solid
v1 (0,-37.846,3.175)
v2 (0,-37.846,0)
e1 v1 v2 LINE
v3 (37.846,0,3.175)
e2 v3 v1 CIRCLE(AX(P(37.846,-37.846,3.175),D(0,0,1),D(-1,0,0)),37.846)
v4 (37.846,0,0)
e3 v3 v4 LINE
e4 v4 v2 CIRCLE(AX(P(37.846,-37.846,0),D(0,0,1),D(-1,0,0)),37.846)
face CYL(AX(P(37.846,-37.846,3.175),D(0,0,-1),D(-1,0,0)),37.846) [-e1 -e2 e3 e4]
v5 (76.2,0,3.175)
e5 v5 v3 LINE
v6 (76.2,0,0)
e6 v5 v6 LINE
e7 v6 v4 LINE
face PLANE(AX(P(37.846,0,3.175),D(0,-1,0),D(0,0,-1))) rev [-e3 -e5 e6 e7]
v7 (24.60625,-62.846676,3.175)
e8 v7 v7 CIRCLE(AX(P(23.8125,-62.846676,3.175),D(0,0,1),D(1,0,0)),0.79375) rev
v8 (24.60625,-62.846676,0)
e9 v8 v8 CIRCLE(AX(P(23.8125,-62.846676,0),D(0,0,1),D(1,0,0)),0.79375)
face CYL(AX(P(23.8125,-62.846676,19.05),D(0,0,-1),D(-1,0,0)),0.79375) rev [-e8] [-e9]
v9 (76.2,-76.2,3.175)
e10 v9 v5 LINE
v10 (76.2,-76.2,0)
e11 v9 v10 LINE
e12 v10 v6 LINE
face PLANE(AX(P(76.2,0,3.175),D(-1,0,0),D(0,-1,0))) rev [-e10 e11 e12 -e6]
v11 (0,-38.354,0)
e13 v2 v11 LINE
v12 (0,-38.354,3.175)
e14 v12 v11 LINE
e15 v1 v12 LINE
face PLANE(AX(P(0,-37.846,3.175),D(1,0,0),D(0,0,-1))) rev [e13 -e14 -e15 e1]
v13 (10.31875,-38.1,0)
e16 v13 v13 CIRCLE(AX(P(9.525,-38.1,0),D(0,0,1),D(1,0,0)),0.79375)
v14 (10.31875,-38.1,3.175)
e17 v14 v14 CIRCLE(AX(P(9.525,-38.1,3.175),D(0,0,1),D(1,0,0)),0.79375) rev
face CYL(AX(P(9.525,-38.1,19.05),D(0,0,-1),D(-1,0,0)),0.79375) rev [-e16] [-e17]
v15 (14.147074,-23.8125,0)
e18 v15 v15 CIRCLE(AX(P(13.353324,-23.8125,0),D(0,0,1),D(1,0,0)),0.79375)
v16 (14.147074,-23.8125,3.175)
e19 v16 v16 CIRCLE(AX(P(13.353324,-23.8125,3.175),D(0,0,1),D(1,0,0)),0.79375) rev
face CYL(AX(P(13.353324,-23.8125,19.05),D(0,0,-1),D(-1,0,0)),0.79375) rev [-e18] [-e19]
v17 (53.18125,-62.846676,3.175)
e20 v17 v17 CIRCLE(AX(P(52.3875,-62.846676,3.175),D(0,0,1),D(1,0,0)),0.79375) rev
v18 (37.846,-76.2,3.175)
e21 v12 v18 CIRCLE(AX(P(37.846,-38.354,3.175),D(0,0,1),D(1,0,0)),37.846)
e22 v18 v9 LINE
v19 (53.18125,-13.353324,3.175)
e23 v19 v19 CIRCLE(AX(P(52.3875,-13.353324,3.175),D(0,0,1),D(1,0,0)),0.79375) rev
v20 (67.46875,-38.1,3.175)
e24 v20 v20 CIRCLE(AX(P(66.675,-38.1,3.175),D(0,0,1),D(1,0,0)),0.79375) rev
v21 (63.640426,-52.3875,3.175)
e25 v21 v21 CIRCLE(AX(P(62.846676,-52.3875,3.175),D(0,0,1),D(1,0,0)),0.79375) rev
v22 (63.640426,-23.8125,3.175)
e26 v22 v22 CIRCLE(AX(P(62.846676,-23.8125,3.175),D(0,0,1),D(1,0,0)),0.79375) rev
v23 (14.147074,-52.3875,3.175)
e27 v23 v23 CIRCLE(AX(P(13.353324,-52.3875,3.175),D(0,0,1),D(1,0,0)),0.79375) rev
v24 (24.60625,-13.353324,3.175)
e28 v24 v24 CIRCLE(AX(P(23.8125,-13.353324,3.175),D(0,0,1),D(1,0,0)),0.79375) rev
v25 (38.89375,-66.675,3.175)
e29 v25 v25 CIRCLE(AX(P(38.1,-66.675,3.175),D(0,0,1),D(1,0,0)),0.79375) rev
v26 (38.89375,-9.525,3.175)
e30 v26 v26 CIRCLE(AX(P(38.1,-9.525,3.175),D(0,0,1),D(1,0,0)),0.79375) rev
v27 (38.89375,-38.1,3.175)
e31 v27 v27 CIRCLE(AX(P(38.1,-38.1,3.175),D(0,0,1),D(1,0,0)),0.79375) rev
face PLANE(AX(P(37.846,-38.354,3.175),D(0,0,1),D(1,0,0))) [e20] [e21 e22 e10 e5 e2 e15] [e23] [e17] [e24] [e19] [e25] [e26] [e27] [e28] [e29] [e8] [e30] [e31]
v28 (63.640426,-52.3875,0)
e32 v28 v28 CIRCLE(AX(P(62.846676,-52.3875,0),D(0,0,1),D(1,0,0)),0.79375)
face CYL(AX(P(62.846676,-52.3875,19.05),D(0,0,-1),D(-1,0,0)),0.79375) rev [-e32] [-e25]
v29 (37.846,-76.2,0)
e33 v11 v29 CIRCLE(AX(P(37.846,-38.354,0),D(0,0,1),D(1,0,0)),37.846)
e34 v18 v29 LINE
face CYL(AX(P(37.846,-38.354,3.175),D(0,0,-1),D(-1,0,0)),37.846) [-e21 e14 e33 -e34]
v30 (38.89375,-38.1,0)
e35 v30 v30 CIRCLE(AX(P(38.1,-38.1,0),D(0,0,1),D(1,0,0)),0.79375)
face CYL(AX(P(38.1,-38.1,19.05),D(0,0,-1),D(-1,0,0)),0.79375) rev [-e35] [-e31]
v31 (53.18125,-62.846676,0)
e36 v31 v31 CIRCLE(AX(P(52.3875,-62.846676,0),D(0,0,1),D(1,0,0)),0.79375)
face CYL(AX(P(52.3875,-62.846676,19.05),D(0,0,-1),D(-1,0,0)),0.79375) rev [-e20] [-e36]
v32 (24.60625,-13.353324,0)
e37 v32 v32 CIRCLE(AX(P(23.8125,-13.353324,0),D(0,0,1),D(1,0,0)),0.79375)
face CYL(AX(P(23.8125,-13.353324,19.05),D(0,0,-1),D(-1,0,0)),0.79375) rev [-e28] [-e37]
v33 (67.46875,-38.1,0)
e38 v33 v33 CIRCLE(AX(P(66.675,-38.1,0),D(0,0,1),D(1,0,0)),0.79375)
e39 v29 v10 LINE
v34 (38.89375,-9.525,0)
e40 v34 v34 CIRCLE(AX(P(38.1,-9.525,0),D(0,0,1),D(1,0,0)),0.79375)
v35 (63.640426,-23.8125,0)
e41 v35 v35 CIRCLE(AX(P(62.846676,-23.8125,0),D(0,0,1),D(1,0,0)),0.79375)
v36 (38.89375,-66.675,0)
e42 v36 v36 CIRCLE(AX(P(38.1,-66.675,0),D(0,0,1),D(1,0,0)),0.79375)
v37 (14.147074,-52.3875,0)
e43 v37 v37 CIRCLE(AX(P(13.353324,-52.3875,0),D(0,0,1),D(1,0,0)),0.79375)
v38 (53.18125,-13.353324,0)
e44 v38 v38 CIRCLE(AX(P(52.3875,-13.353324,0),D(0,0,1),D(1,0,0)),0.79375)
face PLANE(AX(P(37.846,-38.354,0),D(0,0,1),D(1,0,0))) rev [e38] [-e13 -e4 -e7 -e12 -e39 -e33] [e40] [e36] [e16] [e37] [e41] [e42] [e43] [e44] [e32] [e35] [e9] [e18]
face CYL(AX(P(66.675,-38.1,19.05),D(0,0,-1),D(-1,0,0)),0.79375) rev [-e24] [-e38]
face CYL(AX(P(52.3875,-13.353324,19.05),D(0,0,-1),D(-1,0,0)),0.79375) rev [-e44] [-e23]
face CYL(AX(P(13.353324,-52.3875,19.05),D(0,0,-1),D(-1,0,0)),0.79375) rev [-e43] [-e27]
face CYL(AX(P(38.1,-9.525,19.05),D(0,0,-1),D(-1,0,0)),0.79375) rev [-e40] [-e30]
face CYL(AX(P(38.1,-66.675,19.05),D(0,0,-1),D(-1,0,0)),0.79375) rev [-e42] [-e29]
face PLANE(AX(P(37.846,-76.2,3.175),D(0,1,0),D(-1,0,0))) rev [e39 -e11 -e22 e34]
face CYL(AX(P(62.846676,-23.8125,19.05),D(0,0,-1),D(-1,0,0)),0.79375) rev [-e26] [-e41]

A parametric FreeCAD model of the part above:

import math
import FreeCAD as App
import Part
import Sketcher
Q = App.Units.Quantity

doc = App.newDocument("Part")
params = doc.addObject("Spreadsheet::Sheet", "Params")
for row, (alias, value) in enumerate([
    ("sketch1_height", "3 in"),
    ("sketch1_radius", "1.49 in"),
    ("pad1_length", "0.125 in"),
    ("sketch2_diameter", "0.0625 in"),
    ("pocket1_length", "0.75 in"),
], start=1):
    params.set(f"A{row}", alias)
    params.set(f"B{row}", "=" + value)
    params.setAlias(f"B{row}", alias)

body = doc.addObject("PartDesign::Body", "Body")

# Sketch on XY plane
sketch1 = body.newObject("Sketcher::SketchObject", "Sketch")
sketch1.AttachmentSupport = (doc.getObject("XY_Plane"), [""])
sketch1.MapMode = "FlatFace"
sketch1.addGeometry([
    Part.LineSegment(App.Vector(76.2, -76.2, 0), App.Vector(76.2, 0, 0)),  # 0
    Part.LineSegment(App.Vector(76.2, 0, 0), App.Vector(37.846, 0, 0)),  # 1
    Part.ArcOfCircle(Part.Circle(App.Vector(37.846, -37.846, 0), App.Vector(0, 0, 1), 37.846), math.radians(90), math.radians(180)),  # 2
    Part.LineSegment(App.Vector(0, -37.846, 0), App.Vector(0, -38.354, 0)),  # 3
    Part.ArcOfCircle(Part.Circle(App.Vector(37.846, -38.354, 0), App.Vector(0, 0, 1), 37.846), math.radians(180), math.radians(270)),  # 4
    Part.LineSegment(App.Vector(37.846, -76.2, 0), App.Vector(76.2, -76.2, 0)),  # 5
], False)
sketch1.addConstraint([
    Sketcher.Constraint("Coincident", 0, 2, 1, 1),
    Sketcher.Constraint("Tangent", 1, 2, 2, 1),
    Sketcher.Constraint("Tangent", 2, 2, 3, 1),
    Sketcher.Constraint("Tangent", 3, 2, 4, 1),
    Sketcher.Constraint("Tangent", 4, 2, 5, 1),
    Sketcher.Constraint("Coincident", 5, 2, 0, 1),
    Sketcher.Constraint("Vertical", 0),
    Sketcher.Constraint("Horizontal", 1),
    Sketcher.Constraint("Vertical", 3),
    Sketcher.Constraint("Horizontal", 5),
    Sketcher.Constraint("Equal", 2, 4),
    Sketcher.Constraint("PointOnObject", 0, 2, -1),
    Sketcher.Constraint("PointOnObject", 2, 2, -2),
    Sketcher.Constraint("DistanceY", 0, 1, 0, 2, Q("3 in")),
    Sketcher.Constraint("Radius", 2, Q("1.49 in")),
    Sketcher.Constraint("DistanceX", -1, 1, 0, 2, Q("3 in")),
])
sketch1.setExpression("Constraints[13]", "Params.sketch1_height")
sketch1.setExpression("Constraints[14]", "Params.sketch1_radius")
pad1 = body.newObject("PartDesign::Pad", "Pad")
pad1.Profile = sketch1
pad1.setExpression("Length", "Params.pad1_length")

# Sketch on XY plane
sketch2 = body.newObject("Sketcher::SketchObject", "Sketch001")
sketch2.AttachmentSupport = (doc.getObject("XY_Plane"), [""])
sketch2.MapMode = "FlatFace"
sketch2.addGeometry([
    Part.Circle(App.Vector(38.1, -38.1, 0), App.Vector(0, 0, 1), 0.79375),  # 0
    Part.Circle(App.Vector(66.675, -38.1, 0), App.Vector(0, 0, 1), 0.79375),  # 1
    Part.Circle(App.Vector(62.846676, -52.3875, 0), App.Vector(0, 0, 1), 0.79375),  # 2
    Part.Circle(App.Vector(52.3875, -62.846676, 0), App.Vector(0, 0, 1), 0.79375),  # 3
    Part.Circle(App.Vector(38.1, -66.675, 0), App.Vector(0, 0, 1), 0.79375),  # 4
    Part.Circle(App.Vector(23.8125, -62.846676, 0), App.Vector(0, 0, 1), 0.79375),  # 5
    Part.Circle(App.Vector(13.353324, -52.3875, 0), App.Vector(0, 0, 1), 0.79375),  # 6
    Part.Circle(App.Vector(9.525, -38.1, 0), App.Vector(0, 0, 1), 0.79375),  # 7
    Part.Circle(App.Vector(13.353324, -23.8125, 0), App.Vector(0, 0, 1), 0.79375),  # 8
    Part.Circle(App.Vector(23.8125, -13.353324, 0), App.Vector(0, 0, 1), 0.79375),  # 9
    Part.Circle(App.Vector(38.1, -9.525, 0), App.Vector(0, 0, 1), 0.79375),  # 10
    Part.Circle(App.Vector(52.3875, -13.353324, 0), App.Vector(0, 0, 1), 0.79375),  # 11
    Part.Circle(App.Vector(62.846676, -23.8125, 0), App.Vector(0, 0, 1), 0.79375),  # 12
], False)
sketch2.addConstraint([
    Sketcher.Constraint("Equal", 0, 1),
    Sketcher.Constraint("Equal", 1, 2),
    Sketcher.Constraint("Equal", 2, 3),
    Sketcher.Constraint("Equal", 3, 4),
    Sketcher.Constraint("Equal", 4, 5),
    Sketcher.Constraint("Equal", 5, 6),
    Sketcher.Constraint("Equal", 6, 7),
    Sketcher.Constraint("Equal", 7, 8),
    Sketcher.Constraint("Equal", 8, 9),
    Sketcher.Constraint("Equal", 9, 10),
    Sketcher.Constraint("Equal", 10, 11),
    Sketcher.Constraint("Equal", 11, 12),
    Sketcher.Constraint("Horizontal", 0, 3, 1, 3),
    Sketcher.Constraint("Horizontal", 3, 3, 5, 3),
    Sketcher.Constraint("Horizontal", 2, 3, 6, 3),
    Sketcher.Constraint("Horizontal", 1, 3, 7, 3),
    Sketcher.Constraint("Horizontal", 9, 3, 11, 3),
    Sketcher.Constraint("Horizontal", 8, 3, 12, 3),
    Sketcher.Constraint("Vertical", 0, 3, 4, 3),
    Sketcher.Constraint("Vertical", 6, 3, 8, 3),
    Sketcher.Constraint("Vertical", 5, 3, 9, 3),
    Sketcher.Constraint("Vertical", 4, 3, 10, 3),
    Sketcher.Constraint("Vertical", 3, 3, 11, 3),
    Sketcher.Constraint("Vertical", 2, 3, 12, 3),
    Sketcher.Constraint("Diameter", 0, Q("0.0625 in")),
    Sketcher.Constraint("DistanceX", -1, 1, 0, 3, Q("1.5 in")),
    Sketcher.Constraint("DistanceY", 0, 3, -1, 1, Q("1.5 in")),
    Sketcher.Constraint("DistanceX", -1, 1, 1, 3, Q("2.625 in")),
    Sketcher.Constraint("DistanceY", 2, 3, -1, 1, Q("2.0625 in")),
    Sketcher.Constraint("DistanceX", -1, 1, 3, 3, Q("2.0625 in")),
    Sketcher.Constraint("DistanceY", 4, 3, -1, 1, Q("2.625 in")),
    Sketcher.Constraint("DistanceX", -1, 1, 5, 3, Q("0.9375 in")),
    Sketcher.Constraint("DistanceX", -1, 1, 7, 3, Q("0.375 in")),
    Sketcher.Constraint("DistanceY", 8, 3, -1, 1, Q("0.9375 in")),
    Sketcher.Constraint("DistanceY", 10, 3, -1, 1, Q("0.375 in")),
    Sketcher.Constraint("DistanceX", 6, 3, 2, 3, Q("49.493352 mm")),
    Sketcher.Constraint("DistanceY", 5, 3, 9, 3, Q("49.493352 mm")),
    Sketcher.Constraint("DistanceX", -1, 1, 2, 3, Q("62.846676 mm")),
    Sketcher.Constraint("DistanceY", 3, 3, -1, 1, Q("62.846676 mm")),
])
sketch2.setExpression("Constraints[24]", "Params.sketch2_diameter")
pocket1 = body.newObject("PartDesign::Pocket", "Pocket")
pocket1.Profile = sketch2
pocket1.setExpression("Length", "Params.pocket1_length")
pocket1.Reversed = True

doc.recompute()
